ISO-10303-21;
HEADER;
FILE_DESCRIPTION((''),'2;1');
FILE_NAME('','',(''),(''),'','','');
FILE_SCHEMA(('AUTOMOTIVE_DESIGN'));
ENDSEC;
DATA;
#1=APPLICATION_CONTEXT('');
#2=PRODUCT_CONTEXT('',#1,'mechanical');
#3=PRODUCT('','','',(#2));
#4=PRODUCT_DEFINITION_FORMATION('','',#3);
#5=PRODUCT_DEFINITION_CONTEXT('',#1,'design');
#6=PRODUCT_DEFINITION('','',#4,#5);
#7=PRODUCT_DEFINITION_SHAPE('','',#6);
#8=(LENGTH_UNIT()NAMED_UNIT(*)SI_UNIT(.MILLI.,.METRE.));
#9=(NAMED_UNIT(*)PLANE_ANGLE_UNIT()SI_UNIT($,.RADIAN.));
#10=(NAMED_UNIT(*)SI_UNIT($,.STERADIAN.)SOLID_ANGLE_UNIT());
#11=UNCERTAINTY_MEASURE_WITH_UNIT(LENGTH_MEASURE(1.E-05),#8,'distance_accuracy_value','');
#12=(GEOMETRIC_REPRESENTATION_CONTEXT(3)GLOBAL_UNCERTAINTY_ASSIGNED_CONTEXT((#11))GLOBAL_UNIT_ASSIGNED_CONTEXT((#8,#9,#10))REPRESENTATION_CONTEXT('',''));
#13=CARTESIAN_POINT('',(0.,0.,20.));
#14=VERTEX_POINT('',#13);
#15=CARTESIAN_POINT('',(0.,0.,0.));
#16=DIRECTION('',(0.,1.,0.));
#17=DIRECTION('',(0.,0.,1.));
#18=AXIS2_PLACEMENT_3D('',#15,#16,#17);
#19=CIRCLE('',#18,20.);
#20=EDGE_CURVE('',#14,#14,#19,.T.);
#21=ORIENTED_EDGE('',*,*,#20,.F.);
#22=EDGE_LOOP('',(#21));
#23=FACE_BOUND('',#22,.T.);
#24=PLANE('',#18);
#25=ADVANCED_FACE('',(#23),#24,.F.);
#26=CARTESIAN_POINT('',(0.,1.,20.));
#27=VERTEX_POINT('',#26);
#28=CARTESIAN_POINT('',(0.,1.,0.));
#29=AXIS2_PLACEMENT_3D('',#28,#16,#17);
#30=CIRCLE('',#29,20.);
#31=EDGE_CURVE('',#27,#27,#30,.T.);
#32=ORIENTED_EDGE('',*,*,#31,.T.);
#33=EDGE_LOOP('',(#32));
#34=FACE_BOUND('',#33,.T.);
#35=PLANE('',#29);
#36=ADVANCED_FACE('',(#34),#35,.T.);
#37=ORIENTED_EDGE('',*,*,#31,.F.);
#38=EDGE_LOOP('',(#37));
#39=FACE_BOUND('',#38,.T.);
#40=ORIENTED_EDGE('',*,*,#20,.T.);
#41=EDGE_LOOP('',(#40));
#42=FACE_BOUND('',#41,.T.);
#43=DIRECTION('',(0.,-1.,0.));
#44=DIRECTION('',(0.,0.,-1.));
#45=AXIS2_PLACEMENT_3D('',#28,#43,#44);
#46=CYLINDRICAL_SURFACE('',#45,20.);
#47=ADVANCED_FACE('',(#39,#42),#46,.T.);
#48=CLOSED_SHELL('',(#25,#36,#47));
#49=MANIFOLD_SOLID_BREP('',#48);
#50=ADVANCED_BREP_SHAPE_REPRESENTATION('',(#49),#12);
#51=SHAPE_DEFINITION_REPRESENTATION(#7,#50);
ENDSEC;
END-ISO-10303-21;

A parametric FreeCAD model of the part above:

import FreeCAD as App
import Part
import Sketcher
from FreeCAD import Vector
Q = App.Units.Quantity

doc = App.newDocument("Part")
body = doc.addObject("PartDesign::Body", "Body")

# Sketch on XZ plane
sketch1 = body.newObject("Sketcher::SketchObject", "Sketch")
sketch1.AttachmentSupport = (doc.getObject("XZ_Plane"), [""])
sketch1.MapMode = "FlatFace"
sketch1.addGeometry(Part.Circle(Vector(0, 0, 0), Vector(0, 0, 1), 20), False)
sketch1.addConstraint(Sketcher.Constraint("Coincident", 0, 3, -1, 1))
sketch1.addConstraint(Sketcher.Constraint("Diameter", 0, Q("40 mm")))
pad1 = body.newObject("PartDesign::Pad", "Pad")
pad1.Profile = sketch1
pad1.Length = 1
pad1.Reversed = True

doc.recompute()
